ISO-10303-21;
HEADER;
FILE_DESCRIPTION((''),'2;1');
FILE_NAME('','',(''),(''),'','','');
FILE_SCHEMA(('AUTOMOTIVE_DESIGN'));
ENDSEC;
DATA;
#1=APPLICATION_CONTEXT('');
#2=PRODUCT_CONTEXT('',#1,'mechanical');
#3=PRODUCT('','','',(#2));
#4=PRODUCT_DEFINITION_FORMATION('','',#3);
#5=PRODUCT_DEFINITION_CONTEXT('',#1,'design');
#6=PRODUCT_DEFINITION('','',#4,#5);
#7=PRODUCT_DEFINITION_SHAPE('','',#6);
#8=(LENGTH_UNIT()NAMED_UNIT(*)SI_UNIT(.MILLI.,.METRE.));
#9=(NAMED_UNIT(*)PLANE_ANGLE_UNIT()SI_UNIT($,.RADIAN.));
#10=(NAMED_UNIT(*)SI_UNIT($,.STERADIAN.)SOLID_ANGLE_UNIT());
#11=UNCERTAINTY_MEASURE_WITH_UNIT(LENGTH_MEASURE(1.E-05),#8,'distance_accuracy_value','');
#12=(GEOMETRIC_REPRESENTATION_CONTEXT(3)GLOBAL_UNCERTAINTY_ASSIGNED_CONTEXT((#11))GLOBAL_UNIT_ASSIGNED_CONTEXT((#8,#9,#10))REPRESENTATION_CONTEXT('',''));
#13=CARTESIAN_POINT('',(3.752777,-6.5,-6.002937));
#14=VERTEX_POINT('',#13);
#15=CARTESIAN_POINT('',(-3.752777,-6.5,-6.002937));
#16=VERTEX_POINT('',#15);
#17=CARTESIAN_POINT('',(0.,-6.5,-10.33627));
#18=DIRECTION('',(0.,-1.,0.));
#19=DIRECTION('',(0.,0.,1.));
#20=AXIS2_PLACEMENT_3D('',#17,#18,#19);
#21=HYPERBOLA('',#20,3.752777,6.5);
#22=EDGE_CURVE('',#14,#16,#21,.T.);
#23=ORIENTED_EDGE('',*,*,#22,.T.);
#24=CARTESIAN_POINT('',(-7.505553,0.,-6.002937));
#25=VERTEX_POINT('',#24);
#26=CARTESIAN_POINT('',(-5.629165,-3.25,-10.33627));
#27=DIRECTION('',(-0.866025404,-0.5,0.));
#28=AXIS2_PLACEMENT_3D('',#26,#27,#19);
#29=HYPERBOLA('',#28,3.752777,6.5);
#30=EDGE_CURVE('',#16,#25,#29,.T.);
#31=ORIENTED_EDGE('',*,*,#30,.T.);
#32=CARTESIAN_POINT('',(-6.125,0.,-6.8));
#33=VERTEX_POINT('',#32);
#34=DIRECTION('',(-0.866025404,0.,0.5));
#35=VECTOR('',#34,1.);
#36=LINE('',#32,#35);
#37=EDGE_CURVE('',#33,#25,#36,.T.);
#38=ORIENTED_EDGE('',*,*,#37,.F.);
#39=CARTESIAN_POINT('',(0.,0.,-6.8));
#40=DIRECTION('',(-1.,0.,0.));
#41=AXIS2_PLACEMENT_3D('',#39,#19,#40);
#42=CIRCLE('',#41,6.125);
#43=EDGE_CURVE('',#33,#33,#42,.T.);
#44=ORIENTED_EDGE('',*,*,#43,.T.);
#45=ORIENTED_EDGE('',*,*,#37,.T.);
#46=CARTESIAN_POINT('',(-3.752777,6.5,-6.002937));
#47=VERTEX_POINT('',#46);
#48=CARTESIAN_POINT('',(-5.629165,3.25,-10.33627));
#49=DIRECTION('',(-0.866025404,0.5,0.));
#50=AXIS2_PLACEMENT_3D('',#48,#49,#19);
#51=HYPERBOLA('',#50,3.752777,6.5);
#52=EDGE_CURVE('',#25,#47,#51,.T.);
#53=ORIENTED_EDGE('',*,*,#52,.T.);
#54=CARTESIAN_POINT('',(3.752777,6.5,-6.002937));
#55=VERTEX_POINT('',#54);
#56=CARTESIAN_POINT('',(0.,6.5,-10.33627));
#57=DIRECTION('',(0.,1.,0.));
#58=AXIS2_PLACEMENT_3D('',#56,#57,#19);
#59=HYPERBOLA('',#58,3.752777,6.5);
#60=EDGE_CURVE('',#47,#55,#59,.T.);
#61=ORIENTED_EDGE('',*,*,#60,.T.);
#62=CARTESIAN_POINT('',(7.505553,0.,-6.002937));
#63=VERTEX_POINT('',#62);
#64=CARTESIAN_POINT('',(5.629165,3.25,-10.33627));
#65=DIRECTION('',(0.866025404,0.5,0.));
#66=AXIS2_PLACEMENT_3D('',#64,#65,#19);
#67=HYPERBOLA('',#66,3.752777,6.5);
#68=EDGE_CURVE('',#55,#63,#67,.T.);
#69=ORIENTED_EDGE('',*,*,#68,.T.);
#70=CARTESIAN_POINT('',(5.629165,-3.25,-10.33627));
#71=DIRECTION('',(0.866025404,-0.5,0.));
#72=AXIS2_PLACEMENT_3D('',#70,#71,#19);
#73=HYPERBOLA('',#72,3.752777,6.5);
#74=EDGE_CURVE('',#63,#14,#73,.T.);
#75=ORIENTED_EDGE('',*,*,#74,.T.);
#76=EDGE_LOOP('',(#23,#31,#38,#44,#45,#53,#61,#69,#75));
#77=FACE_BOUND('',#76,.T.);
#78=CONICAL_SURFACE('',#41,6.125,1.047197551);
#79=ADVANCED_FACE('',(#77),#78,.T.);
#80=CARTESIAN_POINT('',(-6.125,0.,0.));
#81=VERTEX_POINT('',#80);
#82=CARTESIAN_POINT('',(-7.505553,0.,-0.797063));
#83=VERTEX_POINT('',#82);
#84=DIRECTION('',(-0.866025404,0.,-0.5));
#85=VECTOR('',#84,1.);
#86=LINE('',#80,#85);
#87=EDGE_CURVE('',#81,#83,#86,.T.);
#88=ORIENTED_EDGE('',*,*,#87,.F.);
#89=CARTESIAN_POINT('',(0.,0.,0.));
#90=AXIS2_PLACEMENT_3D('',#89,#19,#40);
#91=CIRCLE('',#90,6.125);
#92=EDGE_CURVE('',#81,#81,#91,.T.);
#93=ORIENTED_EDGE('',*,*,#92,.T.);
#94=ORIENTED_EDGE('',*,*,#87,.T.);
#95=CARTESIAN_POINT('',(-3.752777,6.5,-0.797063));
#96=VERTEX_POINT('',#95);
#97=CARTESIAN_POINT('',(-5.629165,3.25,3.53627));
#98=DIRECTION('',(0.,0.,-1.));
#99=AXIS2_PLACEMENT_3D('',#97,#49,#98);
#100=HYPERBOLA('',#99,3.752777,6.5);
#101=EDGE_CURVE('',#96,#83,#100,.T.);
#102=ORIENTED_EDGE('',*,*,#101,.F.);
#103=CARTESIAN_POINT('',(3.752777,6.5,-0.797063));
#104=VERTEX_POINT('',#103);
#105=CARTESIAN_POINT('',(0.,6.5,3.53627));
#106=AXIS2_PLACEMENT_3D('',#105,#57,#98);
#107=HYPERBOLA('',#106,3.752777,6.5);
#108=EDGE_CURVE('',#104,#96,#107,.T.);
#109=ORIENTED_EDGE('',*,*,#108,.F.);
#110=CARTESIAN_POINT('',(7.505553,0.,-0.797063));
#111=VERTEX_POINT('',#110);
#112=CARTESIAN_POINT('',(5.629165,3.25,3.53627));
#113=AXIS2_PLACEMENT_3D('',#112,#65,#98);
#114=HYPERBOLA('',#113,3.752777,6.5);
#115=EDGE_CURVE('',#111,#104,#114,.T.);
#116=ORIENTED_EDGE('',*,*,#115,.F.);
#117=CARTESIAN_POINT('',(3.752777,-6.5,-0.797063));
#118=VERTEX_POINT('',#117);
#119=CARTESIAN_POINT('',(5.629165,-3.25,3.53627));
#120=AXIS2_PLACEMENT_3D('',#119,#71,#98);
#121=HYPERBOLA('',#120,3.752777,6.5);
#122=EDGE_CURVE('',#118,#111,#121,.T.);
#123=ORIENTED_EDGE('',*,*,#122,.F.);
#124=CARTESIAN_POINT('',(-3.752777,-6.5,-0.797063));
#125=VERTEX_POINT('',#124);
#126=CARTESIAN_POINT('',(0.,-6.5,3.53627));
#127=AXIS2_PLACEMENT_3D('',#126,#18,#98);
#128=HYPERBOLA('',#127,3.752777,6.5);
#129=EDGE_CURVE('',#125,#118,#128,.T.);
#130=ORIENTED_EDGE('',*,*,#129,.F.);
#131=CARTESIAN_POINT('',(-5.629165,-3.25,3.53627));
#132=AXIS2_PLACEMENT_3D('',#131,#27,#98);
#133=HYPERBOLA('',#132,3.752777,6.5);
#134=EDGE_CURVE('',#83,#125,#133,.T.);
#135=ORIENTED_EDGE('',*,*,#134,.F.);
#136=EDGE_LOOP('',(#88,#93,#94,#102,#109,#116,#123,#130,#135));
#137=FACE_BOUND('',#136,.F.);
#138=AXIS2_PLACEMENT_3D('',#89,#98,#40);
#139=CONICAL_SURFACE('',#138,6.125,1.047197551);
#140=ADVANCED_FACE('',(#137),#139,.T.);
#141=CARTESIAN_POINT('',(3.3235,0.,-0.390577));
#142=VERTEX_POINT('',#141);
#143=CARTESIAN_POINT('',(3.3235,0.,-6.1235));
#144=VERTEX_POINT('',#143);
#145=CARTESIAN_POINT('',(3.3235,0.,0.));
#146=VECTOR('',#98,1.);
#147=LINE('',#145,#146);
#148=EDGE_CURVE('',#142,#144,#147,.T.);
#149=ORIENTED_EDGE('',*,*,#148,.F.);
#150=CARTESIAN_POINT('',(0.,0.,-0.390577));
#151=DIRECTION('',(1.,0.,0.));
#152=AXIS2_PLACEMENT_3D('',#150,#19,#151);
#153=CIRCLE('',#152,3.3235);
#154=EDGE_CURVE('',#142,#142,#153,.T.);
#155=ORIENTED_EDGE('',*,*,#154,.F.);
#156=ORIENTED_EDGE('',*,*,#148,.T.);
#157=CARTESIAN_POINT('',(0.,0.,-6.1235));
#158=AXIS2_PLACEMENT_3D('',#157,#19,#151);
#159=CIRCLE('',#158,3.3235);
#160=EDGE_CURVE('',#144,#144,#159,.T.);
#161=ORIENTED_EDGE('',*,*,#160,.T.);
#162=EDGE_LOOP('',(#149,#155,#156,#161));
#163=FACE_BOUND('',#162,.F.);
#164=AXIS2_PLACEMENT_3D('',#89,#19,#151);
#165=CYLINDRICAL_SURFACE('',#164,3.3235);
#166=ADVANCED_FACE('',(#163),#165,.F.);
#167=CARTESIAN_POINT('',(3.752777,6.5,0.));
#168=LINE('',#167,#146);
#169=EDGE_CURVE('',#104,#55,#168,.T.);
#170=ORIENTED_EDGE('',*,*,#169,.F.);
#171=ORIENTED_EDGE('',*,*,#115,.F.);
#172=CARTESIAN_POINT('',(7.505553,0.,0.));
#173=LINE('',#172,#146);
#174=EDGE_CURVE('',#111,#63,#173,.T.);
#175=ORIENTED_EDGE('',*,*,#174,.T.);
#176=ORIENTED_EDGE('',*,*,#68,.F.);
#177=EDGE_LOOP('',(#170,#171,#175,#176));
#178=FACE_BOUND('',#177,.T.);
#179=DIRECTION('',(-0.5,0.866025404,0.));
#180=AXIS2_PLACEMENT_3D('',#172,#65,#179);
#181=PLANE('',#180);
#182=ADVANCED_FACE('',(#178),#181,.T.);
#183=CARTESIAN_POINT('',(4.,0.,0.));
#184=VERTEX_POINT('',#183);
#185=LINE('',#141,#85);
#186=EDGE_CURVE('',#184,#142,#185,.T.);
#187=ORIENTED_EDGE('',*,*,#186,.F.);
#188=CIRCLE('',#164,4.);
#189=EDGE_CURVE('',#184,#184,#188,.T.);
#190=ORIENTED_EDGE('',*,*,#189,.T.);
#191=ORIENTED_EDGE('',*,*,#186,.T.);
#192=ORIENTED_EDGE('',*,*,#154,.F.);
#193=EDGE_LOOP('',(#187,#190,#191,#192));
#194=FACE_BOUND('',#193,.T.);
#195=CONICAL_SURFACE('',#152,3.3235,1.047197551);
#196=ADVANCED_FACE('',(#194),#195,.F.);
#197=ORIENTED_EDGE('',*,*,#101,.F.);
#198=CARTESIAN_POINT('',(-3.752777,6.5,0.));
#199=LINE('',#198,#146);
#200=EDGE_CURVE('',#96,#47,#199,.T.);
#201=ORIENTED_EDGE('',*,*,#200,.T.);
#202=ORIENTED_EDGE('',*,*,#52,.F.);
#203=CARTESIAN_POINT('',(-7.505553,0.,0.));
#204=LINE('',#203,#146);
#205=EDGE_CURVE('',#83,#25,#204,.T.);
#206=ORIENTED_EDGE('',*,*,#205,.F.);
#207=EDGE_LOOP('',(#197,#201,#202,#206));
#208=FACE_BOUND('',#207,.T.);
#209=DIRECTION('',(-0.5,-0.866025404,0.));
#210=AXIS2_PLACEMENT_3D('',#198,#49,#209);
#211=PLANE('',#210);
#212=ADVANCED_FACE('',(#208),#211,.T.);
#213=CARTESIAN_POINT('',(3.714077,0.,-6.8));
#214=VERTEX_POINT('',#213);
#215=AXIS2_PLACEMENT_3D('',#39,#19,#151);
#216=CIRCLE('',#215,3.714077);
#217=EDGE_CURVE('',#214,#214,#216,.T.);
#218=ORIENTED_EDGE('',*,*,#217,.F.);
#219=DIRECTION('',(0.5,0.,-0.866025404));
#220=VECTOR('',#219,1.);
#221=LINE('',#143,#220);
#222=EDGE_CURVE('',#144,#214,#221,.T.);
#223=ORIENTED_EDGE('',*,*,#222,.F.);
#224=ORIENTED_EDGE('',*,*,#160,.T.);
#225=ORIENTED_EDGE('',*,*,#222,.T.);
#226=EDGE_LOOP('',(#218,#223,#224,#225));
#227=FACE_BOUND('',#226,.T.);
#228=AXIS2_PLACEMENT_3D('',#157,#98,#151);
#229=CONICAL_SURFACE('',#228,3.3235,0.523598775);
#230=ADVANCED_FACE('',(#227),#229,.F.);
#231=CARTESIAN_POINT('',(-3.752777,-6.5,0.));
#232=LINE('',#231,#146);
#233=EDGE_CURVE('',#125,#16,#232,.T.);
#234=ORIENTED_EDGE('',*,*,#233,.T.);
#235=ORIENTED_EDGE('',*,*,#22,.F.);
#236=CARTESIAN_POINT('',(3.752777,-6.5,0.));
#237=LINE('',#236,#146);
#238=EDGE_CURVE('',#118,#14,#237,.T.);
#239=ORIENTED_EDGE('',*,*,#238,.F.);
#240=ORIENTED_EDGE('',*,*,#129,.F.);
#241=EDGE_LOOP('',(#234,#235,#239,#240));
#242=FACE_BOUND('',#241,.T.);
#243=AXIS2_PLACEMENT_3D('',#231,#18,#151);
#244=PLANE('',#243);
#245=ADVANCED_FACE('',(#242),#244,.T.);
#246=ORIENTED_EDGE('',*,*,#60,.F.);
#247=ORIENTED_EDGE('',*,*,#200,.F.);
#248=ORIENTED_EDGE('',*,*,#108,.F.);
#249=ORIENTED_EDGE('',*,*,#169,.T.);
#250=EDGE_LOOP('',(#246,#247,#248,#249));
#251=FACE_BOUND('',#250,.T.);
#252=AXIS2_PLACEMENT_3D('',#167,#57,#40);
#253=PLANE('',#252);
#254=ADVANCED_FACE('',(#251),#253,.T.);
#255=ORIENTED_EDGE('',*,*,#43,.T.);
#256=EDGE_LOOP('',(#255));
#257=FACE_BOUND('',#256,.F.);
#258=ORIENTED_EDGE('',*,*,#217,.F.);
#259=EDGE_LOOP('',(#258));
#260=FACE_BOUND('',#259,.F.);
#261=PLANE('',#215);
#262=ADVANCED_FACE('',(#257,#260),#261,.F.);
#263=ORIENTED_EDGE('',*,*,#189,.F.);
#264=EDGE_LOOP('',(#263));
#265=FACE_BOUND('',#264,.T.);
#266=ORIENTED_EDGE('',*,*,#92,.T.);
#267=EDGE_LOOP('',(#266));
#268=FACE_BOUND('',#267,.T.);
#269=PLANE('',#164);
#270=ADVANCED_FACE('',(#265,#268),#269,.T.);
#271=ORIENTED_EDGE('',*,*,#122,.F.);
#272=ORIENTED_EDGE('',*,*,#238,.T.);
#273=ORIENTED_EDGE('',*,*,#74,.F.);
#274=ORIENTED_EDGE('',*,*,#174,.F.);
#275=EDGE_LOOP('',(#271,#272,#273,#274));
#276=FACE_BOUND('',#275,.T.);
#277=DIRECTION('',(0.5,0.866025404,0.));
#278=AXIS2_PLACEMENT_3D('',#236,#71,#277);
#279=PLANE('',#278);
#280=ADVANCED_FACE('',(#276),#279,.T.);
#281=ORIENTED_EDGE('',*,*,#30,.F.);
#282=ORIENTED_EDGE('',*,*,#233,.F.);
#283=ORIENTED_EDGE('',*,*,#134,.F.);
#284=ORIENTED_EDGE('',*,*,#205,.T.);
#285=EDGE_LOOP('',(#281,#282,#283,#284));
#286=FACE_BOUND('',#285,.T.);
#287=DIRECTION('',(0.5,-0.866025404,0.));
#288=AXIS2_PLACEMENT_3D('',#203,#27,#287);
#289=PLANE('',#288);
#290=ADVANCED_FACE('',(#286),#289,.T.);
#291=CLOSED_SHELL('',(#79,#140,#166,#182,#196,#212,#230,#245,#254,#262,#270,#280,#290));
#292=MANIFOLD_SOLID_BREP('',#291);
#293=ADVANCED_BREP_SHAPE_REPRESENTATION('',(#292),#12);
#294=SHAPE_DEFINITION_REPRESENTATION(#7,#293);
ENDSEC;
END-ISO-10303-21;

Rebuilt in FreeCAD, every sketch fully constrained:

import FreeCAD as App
import Part
import Sketcher
from FreeCAD import Vector
Q = App.Units.Quantity


def edges_at(feature, points):
    """Names of the edges that pass closest to the given points."""
    edges = feature.Shape.Edges
    near = lambda p: min(range(len(edges)), key=lambda i: edges[i].distToShape(Part.Vertex(*p))[0])
    return sorted({f"Edge{near(p) + 1}" for p in points})


def add_polygon(sketch, points):
    """Adds a closed chain of lines whose ends are joined by coincident constraints."""
    first, n = sketch.GeometryCount, len(points)
    for a, b in zip(points, points[1:] + points[:1]):
        sketch.addGeometry(Part.LineSegment(App.Vector(*a, 0), App.Vector(*b, 0)), False)
    for i in range(n):
        sketch.addConstraint(Sketcher.Constraint("Coincident", first + i, 2, first + (i + 1) % n, 1))

doc = App.newDocument("Part")
params = doc.addObject("Spreadsheet::Sheet", "Params")
for row, (alias, value) in enumerate([
    ("pad1_length", "6.8 mm"),
    ("groove_angle", "360 deg"),
    ("chamfer_size", "0.6765 mm"),
    ("chamfer_size2", "0.390577 mm"),
    ("chamfer2_size", "0.6765 mm"),
    ("chamfer2_size2", "0.390577 mm"),
], start=1):
    params.set(f"A{row}", alias)
    params.set(f"B{row}", "=" + value)
    params.setAlias(f"B{row}", alias)

body = doc.addObject("PartDesign::Body", "Body")

sketch1 = body.newObject("Sketcher::SketchObject", "Sketch")
sketch1.AttachmentSupport = (doc.getObject("XY_Plane"), [""])
sketch1.MapMode = "FlatFace"
add_polygon(sketch1, [(7.5, 0), (3.8, 6.5), (-3.8, 6.5), (-7.5, 0), (-3.8, -6.5), (3.8, -6.5)])
sketch1.addGeometry(Part.Circle(Vector(0, 0, 0), Vector(0, 0, 1), 3.3), False)
sketch1.addConstraint([
    Sketcher.Constraint("Horizontal", 1),
    Sketcher.Constraint("Horizontal", 4),
    Sketcher.Constraint("Coincident", 6, 3, -1, 1),
    Sketcher.Constraint("Symmetric", 0, 2, 3, 2, -1, 1),
    Sketcher.Constraint("Symmetric", 2, 2, 5, 2, -1, 1),
    Sketcher.Constraint("PointOnObject", 2, 2, -1),
    Sketcher.Constraint("Parallel", 2, 5),
    Sketcher.Constraint("Vertical", 1, 2, 3, 2),
    Sketcher.Constraint("Angle", 0, Q("120 deg")),
    Sketcher.Constraint("Diameter", 6, 6.647),
    Sketcher.Constraint("DistanceY", 3, 2, 1, 2, 13.0),
    Sketcher.Constraint("DistanceX", 1, 2, 1, 1, 7.505554),
])
pad1 = body.newObject("PartDesign::Pad", "Pad")
pad1.Profile = sketch1
pad1.setExpression("Length", "Params.pad1_length")
pad1.Reversed = True

sketch2 = body.newObject("Sketcher::SketchObject", "Sketch001")
sketch2.AttachmentSupport = (doc.getObject("XZ_Plane"), [""])
sketch2.MapMode = "FlatFace"
add_polygon(sketch2, [(-6.1, -6.8), (-7.5, -6.8), (-7.5, -6)])
add_polygon(sketch2, [(-7.5, -0.8), (-7.5, 0), (-6.1, 0)])
sketch2.addConstraint([
    Sketcher.Constraint("Horizontal", 0),
    Sketcher.Constraint("Vertical", 1),
    Sketcher.Constraint("Vertical", 3),
    Sketcher.Constraint("Horizontal", 4),
    Sketcher.Constraint("PointOnObject", 3, 2, -1),
    Sketcher.Constraint("Vertical", 1, 2, 3, 2),
    Sketcher.Constraint("Vertical", 2, 2, 4, 2),
    Sketcher.Constraint("Equal", 1, 3),
    Sketcher.Constraint("Angle", 2, Q("-30 deg")),
    Sketcher.Constraint("DistanceY", 0, 2, -1, 1, 6.8),
    Sketcher.Constraint("DistanceX", 2, 2, -1, 1, 6.125),
    Sketcher.Constraint("DistanceX", 0, 2, 0, 1, 1.380553),
])
groove = body.newObject("PartDesign::Groove", "Groove")
groove.Profile = sketch2
groove.ReferenceAxis = (sketch2, ["V_Axis"])
groove.setExpression("Angle", "Params.groove_angle")
doc.recompute()

chamfer = body.newObject("PartDesign::Chamfer", "Chamfer")
chamfer.Base = (groove, edges_at(groove, [(-3.324, 0, -6.8)]))
chamfer.ChamferType = "Two distances"
chamfer.setExpression("Size", "Params.chamfer_size")
chamfer.setExpression("Size2", "Params.chamfer_size2")
chamfer.FlipDirection = True
doc.recompute()

chamfer2 = body.newObject("PartDesign::Chamfer", "Chamfer001")
chamfer2.Base = (chamfer, edges_at(chamfer, [(-3.324, 0, 0)]))
chamfer2.ChamferType = "Two distances"
chamfer2.setExpression("Size", "Params.chamfer2_size")
chamfer2.setExpression("Size2", "Params.chamfer2_size2")
chamfer2.FlipDirection = True

doc.recompute()
